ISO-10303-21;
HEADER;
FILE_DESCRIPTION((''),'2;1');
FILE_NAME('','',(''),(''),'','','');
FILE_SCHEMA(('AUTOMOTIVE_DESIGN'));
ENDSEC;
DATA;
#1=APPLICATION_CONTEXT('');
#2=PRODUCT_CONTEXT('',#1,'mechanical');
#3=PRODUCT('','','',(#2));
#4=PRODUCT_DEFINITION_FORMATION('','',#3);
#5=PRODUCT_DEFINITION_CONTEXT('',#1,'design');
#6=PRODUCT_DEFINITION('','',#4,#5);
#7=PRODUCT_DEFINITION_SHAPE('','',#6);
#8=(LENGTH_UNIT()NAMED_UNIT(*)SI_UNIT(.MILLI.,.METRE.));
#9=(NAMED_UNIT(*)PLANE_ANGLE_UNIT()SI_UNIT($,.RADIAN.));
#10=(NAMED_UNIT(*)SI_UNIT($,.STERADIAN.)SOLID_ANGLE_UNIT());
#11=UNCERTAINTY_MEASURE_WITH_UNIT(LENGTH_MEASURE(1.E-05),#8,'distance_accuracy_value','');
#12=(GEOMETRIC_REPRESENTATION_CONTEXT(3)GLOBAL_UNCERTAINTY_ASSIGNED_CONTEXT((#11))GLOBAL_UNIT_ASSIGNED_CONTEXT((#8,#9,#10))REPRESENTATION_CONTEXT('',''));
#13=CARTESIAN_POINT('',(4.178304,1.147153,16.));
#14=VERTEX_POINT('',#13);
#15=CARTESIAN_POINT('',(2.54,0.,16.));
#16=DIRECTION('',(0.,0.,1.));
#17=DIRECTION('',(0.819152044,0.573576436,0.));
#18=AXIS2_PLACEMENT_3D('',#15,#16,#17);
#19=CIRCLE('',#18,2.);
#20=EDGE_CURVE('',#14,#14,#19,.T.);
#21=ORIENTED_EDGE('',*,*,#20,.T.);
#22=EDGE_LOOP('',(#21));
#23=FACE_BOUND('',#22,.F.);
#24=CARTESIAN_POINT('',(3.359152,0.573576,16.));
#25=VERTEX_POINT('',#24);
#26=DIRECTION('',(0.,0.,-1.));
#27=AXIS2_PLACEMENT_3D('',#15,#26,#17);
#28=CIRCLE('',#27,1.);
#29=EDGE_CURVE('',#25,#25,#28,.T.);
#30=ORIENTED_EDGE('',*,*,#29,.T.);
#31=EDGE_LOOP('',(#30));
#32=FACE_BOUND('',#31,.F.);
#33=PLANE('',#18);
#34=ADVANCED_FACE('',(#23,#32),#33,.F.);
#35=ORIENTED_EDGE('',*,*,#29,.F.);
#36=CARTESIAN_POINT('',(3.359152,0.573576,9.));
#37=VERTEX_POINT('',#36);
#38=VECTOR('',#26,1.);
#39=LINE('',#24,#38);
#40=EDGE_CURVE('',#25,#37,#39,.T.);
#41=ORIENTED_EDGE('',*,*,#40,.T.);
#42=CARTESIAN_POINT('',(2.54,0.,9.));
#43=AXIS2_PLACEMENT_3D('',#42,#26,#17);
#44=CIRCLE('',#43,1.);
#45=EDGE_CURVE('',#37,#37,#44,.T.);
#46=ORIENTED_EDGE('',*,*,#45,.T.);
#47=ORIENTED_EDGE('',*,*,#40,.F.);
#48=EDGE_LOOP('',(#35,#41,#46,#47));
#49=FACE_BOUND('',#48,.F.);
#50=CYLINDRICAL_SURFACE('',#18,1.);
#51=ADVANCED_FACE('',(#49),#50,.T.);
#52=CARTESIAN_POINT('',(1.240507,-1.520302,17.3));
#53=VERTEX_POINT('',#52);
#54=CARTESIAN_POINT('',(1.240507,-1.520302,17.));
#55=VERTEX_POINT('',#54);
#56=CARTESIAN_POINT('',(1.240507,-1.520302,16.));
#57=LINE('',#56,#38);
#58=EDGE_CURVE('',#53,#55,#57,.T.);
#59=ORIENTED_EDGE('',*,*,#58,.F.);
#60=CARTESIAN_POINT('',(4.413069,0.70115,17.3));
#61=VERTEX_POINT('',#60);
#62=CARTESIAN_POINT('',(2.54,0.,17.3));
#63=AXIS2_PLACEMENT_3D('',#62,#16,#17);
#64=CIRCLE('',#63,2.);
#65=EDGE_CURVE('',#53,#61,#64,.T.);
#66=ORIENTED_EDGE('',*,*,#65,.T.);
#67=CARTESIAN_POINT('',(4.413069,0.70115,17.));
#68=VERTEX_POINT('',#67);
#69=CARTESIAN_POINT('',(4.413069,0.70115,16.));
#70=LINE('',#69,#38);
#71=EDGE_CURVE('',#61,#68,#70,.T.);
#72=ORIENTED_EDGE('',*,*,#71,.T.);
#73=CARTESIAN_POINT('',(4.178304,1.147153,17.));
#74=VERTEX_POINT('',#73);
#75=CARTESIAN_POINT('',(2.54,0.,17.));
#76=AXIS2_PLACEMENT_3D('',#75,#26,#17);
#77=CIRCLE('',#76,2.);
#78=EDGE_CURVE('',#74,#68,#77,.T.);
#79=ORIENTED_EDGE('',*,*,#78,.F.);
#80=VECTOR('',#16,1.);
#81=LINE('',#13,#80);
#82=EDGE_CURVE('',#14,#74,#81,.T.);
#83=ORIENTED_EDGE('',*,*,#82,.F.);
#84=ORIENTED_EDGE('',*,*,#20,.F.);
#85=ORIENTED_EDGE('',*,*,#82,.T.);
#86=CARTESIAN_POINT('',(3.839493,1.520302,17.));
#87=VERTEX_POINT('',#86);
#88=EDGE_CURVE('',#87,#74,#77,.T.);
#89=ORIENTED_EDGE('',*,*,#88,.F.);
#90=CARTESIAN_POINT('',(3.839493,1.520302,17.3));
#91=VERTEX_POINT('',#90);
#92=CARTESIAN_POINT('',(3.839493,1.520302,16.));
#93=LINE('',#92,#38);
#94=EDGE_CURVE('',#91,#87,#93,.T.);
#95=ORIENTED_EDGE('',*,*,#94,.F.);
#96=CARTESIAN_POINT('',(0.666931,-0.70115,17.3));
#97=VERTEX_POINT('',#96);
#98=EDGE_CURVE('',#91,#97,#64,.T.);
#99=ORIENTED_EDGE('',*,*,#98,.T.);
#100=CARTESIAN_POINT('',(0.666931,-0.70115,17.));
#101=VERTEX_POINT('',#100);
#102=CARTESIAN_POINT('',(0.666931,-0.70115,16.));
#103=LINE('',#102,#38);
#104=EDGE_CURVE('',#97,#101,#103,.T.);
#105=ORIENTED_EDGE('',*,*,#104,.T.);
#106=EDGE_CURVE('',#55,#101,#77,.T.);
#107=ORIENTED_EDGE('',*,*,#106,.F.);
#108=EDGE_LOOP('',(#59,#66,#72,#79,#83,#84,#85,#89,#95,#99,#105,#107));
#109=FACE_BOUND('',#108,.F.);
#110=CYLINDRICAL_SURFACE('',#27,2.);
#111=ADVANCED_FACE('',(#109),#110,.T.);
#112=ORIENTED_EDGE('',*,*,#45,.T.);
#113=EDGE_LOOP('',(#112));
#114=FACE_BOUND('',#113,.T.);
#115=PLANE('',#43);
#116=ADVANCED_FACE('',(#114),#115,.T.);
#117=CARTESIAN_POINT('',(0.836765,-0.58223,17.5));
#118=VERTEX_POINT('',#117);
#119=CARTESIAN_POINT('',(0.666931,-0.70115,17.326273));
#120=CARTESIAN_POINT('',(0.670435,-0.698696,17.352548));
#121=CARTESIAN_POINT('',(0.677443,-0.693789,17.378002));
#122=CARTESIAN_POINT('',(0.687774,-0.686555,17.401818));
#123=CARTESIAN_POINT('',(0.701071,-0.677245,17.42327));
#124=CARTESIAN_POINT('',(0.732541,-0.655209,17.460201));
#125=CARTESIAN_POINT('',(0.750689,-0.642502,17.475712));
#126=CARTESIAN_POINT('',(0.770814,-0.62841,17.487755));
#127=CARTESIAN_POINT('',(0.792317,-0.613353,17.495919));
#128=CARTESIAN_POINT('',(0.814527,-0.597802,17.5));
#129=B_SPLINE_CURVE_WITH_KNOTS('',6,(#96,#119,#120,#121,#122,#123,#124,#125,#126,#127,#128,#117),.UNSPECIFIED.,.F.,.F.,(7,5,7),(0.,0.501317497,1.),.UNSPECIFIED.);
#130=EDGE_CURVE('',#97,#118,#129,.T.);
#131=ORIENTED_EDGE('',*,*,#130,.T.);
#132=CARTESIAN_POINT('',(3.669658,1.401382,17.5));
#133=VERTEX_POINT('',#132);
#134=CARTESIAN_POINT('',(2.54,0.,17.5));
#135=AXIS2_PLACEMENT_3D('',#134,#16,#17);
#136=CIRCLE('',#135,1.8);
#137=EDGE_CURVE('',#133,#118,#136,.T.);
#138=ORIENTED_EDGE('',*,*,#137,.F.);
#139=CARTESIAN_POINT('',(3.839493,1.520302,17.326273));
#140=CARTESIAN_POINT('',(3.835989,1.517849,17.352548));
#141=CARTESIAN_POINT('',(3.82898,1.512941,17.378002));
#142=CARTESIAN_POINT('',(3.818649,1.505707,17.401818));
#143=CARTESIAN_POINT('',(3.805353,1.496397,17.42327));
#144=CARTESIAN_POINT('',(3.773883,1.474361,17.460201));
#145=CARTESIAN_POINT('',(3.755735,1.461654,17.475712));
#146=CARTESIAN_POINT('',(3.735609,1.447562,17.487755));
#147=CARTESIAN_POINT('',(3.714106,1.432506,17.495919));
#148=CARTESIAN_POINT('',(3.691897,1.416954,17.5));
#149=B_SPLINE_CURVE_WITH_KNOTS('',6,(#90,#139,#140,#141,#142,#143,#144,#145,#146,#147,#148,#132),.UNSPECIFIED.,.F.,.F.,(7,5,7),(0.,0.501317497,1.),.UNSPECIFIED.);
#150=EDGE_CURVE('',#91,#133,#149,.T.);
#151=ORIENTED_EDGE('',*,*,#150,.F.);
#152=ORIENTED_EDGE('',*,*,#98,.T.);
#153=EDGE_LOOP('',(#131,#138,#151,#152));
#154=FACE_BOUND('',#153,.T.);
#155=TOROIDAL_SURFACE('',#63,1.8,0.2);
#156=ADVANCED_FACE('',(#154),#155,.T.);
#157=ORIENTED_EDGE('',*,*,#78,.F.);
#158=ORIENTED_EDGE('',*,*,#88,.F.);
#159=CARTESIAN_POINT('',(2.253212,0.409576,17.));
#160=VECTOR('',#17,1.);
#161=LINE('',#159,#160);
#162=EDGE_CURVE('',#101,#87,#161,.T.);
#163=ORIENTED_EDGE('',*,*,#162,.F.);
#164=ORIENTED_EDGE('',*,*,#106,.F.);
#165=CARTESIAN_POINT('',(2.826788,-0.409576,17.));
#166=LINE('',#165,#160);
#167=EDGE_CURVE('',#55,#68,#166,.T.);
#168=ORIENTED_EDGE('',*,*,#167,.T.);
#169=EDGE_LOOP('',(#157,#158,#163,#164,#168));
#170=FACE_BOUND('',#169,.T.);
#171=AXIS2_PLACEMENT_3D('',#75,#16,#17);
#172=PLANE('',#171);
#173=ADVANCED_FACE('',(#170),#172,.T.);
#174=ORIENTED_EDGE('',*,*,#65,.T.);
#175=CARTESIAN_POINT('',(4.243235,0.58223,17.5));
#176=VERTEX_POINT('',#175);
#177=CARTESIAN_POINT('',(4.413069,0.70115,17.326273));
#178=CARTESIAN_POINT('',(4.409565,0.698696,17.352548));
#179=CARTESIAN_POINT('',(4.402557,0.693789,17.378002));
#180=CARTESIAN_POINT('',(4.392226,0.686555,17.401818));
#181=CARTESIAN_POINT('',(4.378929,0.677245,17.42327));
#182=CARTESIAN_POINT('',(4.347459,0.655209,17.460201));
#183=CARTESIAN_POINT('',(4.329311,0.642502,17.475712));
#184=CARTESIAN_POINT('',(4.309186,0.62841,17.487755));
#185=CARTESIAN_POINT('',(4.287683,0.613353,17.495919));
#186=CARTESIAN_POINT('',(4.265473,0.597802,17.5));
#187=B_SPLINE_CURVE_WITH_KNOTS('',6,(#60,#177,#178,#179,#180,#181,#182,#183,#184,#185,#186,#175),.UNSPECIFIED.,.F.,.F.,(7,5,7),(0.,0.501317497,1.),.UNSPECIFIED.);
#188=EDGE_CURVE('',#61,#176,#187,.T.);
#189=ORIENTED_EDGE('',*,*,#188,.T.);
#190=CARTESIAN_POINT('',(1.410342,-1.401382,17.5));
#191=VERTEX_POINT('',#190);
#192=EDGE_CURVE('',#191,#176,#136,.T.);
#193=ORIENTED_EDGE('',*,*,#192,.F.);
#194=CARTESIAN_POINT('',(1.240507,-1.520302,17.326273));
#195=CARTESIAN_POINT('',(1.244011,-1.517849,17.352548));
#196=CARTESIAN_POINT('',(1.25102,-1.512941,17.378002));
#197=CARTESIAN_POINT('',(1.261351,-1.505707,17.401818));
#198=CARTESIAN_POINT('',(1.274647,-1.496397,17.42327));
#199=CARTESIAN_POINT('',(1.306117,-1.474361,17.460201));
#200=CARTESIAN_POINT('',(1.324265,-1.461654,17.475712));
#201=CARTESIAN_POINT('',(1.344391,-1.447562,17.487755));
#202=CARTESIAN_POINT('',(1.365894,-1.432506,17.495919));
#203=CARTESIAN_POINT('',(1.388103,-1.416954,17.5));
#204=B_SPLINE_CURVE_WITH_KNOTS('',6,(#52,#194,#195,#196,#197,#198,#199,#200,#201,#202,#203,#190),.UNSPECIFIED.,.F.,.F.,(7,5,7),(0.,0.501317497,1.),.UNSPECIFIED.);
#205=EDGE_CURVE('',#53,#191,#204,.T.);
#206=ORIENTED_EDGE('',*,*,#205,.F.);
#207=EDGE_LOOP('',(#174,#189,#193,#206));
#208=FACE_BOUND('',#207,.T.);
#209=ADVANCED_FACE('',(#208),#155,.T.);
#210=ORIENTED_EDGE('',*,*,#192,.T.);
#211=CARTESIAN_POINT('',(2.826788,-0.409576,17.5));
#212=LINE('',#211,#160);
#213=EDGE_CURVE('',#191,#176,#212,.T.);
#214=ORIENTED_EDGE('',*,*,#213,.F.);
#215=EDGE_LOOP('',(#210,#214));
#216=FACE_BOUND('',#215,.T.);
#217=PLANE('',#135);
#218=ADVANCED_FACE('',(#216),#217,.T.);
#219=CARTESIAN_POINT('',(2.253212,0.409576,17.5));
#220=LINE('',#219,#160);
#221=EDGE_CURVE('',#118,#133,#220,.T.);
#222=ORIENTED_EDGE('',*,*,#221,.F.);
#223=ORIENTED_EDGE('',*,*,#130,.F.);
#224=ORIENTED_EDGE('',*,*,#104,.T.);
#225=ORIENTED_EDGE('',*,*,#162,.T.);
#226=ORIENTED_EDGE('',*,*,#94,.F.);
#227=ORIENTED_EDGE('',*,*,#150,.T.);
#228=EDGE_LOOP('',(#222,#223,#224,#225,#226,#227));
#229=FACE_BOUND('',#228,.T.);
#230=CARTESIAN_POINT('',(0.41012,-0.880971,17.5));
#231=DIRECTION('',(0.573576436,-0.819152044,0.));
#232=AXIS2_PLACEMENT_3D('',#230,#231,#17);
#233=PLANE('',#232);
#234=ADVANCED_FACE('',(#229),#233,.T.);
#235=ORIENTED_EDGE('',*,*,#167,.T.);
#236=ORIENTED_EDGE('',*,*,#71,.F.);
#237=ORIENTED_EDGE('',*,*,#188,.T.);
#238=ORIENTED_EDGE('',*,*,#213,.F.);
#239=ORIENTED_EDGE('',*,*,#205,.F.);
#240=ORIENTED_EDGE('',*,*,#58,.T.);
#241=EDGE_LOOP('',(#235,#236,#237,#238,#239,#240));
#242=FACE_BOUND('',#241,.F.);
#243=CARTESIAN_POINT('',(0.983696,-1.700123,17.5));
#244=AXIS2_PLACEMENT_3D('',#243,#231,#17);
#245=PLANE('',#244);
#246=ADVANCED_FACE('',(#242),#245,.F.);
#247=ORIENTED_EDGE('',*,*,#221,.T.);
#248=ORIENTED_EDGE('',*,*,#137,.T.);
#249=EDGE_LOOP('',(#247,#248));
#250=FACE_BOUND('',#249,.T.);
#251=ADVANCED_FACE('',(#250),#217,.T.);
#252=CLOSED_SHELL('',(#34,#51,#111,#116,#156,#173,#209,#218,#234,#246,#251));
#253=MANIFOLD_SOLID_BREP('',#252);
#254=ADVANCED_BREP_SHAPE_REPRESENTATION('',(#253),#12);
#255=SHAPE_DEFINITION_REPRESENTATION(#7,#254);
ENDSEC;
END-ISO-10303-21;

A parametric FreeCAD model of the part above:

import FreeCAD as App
import Part
import Sketcher
from FreeCAD import Vector
Q = App.Units.Quantity


def edges_at(feature, points):
    """Names of the edges that pass closest to the given points."""
    edges = feature.Shape.Edges
    near = lambda p: min(range(len(edges)), key=lambda i: edges[i].distToShape(Part.Vertex(*p))[0])
    return sorted({f"Edge{near(p) + 1}" for p in points})

doc = App.newDocument("Part")
params = doc.addObject("Spreadsheet::Sheet", "Params")
for row, (alias, value) in enumerate([
    ("sketch1_diameter", "4 mm"),
    ("pad1_length", "1.5 mm"),
    ("sketch2_diameter", "2 mm"),
    ("pad2_length", "7 mm"),
    ("fillet_radius", "0.2 mm"),
    ("sketch3_height", "1 mm"),
    ("sketch3_width", "4.5 mm"),
    ("pocket1_length", "0.5 mm"),
], start=1):
    params.set(f"A{row}", alias)
    params.set(f"B{row}", "=" + value)
    params.setAlias(f"B{row}", alias)

body = doc.addObject("PartDesign::Body", "Body")

# Sketch on XY plane
sketch1 = body.newObject("Sketcher::SketchObject", "Sketch")
sketch1.AttachmentSupport = (doc.getObject("XY_Plane"), [""])
sketch1.MapMode = "FlatFace"
sketch1.addGeometry(Part.Circle(Vector(0, 0, 0), Vector(0, 0, 1), 2), False)
sketch1.addConstraint(Sketcher.Constraint("Coincident", 0, 3, -1, 1))
sketch1.addConstraint(Sketcher.Constraint("Diameter", 0, Q("4 mm")))
sketch1.setExpression("Constraints[1]", "Params.sketch1_diameter")
pad1 = body.newObject("PartDesign::Pad", "Pad")
pad1.Profile = sketch1
pad1.setExpression("Length", "Params.pad1_length")

# Sketch on XY plane
sketch2 = body.newObject("Sketcher::SketchObject", "Sketch001")
sketch2.AttachmentSupport = (doc.getObject("XY_Plane"), [""])
sketch2.MapMode = "FlatFace"
sketch2.addGeometry(Part.Circle(Vector(0, 0, 0), Vector(0, 0, 1), 1), False)
sketch2.addConstraint(Sketcher.Constraint("Coincident", 0, 3, -1, 1))
sketch2.addConstraint(Sketcher.Constraint("Diameter", 0, Q("2 mm")))
sketch2.setExpression("Constraints[1]", "Params.sketch2_diameter")
pad2 = body.newObject("PartDesign::Pad", "Pad001")
pad2.Profile = sketch2
pad2.setExpression("Length", "Params.pad2_length")
pad2.Reversed = True
doc.recompute()

fillet = body.newObject("PartDesign::Fillet", "Fillet")
fillet.Base = (pad2, edges_at(pad2, [(-2, 0, 1.5)]))
fillet.setExpression("Radius", "Params.fillet_radius")

# Sketch on XY plane
sketch3 = body.newObject("Sketcher::SketchObject", "Sketch002")
sketch3.AttachmentSupport = (doc.getObject("XY_Plane"), [""])
sketch3.MapMode = "FlatFace"
sketch3.AttachmentOffset = App.Placement(Vector(0, 0, 1.5), App.Rotation())
sketch3.addGeometry(Part.LineSegment(Vector(-2.25, 0.5, 0), Vector(-2.25, -0.5, 0)), False)
sketch3.addGeometry(Part.LineSegment(Vector(-2.25, -0.5, 0), Vector(2.25, -0.5, 0)), False)
sketch3.addGeometry(Part.LineSegment(Vector(2.25, -0.5, 0), Vector(2.25, 0.5, 0)), False)
sketch3.addGeometry(Part.LineSegment(Vector(2.25, 0.5, 0), Vector(-2.25, 0.5, 0)), False)
sketch3.addConstraint(Sketcher.Constraint("Coincident", 0, 2, 1, 1))
sketch3.addConstraint(Sketcher.Constraint("Coincident", 1, 2, 2, 1))
sketch3.addConstraint(Sketcher.Constraint("Coincident", 2, 2, 3, 1))
sketch3.addConstraint(Sketcher.Constraint("Coincident", 3, 2, 0, 1))
sketch3.addConstraint(Sketcher.Constraint("Vertical", 0))
sketch3.addConstraint(Sketcher.Constraint("Horizontal", 1))
sketch3.addConstraint(Sketcher.Constraint("Vertical", 2))
sketch3.addConstraint(Sketcher.Constraint("Horizontal", 3))
sketch3.addConstraint(Sketcher.Constraint("Symmetric", 0, 2, 2, 2, -1, 1))
sketch3.addConstraint(Sketcher.Constraint("DistanceY", 0, 2, 0, 1, Q("1 mm")))
sketch3.addConstraint(Sketcher.Constraint("DistanceX", 1, 1, 1, 2, Q("4.5 mm")))
sketch3.setExpression("Constraints[9]", "Params.sketch3_height")
sketch3.setExpression("Constraints[10]", "Params.sketch3_width")
pocket1 = body.newObject("PartDesign::Pocket", "Pocket")
pocket1.Profile = sketch3
pocket1.setExpression("Length", "Params.pocket1_length")
body2 = doc.addObject("PartDesign::Body", "Body001")
doc.recompute()

body.Placement = App.Placement(Vector(2.54, 0, 16), App.Rotation(Vector(0, 0, 1), 35))
boolean = body2.newObject("PartDesign::Boolean", "Boolean")
boolean.Type = "Fuse"
boolean.addObjects([body])

doc.recompute()
